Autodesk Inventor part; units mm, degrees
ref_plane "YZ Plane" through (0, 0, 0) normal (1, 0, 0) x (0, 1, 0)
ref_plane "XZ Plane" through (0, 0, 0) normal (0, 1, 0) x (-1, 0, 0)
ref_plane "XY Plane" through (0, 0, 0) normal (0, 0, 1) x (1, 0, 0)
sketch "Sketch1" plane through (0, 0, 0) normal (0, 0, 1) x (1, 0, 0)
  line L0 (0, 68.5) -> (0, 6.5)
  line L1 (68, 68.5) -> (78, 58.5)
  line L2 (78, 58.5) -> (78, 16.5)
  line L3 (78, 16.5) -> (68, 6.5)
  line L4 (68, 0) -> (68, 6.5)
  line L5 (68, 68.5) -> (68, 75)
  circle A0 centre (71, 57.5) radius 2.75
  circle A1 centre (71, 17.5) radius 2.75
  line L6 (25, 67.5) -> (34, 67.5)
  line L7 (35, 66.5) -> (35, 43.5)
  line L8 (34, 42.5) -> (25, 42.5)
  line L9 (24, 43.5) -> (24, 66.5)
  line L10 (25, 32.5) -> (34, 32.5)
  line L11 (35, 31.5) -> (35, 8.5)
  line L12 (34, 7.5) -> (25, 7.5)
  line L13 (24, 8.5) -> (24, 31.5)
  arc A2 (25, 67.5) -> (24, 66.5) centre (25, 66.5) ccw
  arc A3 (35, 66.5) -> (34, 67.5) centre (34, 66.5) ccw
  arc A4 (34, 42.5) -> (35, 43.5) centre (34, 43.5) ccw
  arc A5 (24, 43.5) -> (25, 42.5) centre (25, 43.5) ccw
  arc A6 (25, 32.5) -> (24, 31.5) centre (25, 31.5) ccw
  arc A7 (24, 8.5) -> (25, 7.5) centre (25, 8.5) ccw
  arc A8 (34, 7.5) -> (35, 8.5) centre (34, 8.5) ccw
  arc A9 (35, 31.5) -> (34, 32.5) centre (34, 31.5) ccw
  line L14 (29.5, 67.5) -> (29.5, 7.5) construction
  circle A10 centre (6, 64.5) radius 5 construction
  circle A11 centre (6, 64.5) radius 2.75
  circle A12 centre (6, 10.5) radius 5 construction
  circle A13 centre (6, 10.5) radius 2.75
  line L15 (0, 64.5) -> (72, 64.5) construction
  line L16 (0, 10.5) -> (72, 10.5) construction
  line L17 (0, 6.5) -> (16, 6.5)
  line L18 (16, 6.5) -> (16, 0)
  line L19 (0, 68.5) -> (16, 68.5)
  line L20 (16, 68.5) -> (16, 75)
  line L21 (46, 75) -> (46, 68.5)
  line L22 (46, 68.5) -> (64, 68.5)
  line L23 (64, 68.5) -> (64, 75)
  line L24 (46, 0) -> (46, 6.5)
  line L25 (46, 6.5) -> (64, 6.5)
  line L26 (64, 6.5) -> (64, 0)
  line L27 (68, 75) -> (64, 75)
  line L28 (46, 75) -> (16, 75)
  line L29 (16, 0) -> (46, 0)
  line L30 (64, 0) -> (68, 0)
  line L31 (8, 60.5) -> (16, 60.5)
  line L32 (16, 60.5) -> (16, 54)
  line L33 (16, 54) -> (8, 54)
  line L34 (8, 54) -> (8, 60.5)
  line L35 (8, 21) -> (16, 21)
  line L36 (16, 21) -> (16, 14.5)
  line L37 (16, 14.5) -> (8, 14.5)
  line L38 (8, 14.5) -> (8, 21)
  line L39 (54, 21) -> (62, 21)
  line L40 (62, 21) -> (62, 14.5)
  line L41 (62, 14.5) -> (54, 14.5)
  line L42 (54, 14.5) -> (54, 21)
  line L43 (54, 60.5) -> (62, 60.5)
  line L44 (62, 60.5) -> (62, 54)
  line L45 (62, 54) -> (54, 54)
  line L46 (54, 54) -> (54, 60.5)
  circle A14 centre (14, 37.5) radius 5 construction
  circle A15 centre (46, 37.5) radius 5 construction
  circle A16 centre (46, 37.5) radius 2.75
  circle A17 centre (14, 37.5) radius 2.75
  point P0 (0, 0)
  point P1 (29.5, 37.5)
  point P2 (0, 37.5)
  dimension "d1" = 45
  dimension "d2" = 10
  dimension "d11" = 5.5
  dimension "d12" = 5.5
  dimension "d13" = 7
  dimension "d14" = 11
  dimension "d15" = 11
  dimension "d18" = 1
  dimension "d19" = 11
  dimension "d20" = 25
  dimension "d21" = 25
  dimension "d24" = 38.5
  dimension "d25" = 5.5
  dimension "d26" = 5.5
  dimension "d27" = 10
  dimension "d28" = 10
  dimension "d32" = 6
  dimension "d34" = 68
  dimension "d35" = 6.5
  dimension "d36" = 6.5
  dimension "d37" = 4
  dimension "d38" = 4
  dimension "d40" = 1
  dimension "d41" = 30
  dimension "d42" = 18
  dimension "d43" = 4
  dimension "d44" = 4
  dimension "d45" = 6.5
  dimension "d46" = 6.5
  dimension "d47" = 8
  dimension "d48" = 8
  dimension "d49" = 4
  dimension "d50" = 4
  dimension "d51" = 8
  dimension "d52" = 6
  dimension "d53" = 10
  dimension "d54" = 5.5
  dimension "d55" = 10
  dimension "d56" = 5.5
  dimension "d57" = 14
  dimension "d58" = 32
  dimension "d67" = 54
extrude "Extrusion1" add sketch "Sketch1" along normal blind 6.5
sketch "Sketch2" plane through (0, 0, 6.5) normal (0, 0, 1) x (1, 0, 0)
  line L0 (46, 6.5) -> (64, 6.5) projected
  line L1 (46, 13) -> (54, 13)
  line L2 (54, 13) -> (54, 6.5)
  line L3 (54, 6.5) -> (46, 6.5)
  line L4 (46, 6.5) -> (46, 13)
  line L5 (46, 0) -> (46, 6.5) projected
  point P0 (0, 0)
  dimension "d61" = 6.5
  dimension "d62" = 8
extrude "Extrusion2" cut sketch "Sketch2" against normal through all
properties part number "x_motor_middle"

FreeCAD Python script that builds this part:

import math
import FreeCAD as App
import Part
import Sketcher

V = App.Vector
Q = App.Units.Quantity


def add_polygon(sketch, points):
    """Adds a closed chain of lines whose ends are joined by coincident constraints."""
    first, n = sketch.GeometryCount, len(points)
    for a, b in zip(points, points[1:] + points[:1]):
        sketch.addGeometry(Part.LineSegment(App.Vector(*a, 0), App.Vector(*b, 0)), False)
    for i in range(n):
        sketch.addConstraint(Sketcher.Constraint("Coincident", first + i, 2, first + (i + 1) % n, 1))

doc = App.newDocument("Part")
body = doc.addObject("PartDesign::Body", "Body")

# Sketch on XY plane
sketch1 = body.newObject("Sketcher::SketchObject", "Sketch")
sketch1.AttachmentSupport = (doc.getObject("XY_Plane"), [""])
sketch1.MapMode = "FlatFace"
add_polygon(sketch1, [(16, 68.5), (0, 68.5), (0, 6.5), (16, 6.5), (16, 0), (46, 0), (46, 6.5), (64, 6.5), (64, 0), (68, 0), (68, 6.5), (78, 16.5), (78, 58.5), (68, 68.5), (68, 75), (64, 75), (64, 68.5), (46, 68.5), (46, 75), (16, 75)])  # lines 0-19
sketch1.addGeometry(Part.Circle(V(6, 10.5, 0), V(0, 0, 1), 2.8), False)  # 20
add_polygon(sketch1, [(8, 14.5), (8, 21), (16, 21), (16, 14.5)])  # lines 21-24
sketch1.addGeometry(Part.ArcOfCircle(Part.Circle(V(25, 31.5, 0), V(0, 0, 1), 1), math.radians(90), math.radians(180)), False)  # 25
sketch1.addGeometry(Part.LineSegment(V(25, 32.5, 0), V(34, 32.5, 0)), False)  # 26
sketch1.addGeometry(Part.ArcOfCircle(Part.Circle(V(34, 31.5, 0), V(0, 0, 1), 1), math.radians(0), math.radians(90)), False)  # 27
sketch1.addGeometry(Part.LineSegment(V(35, 31.5, 0), V(35, 8.5, 0)), False)  # 28
sketch1.addGeometry(Part.ArcOfCircle(Part.Circle(V(34, 8.5, 0), V(0, 0, 1), 1), math.radians(-90), math.radians(0)), False)  # 29
sketch1.addGeometry(Part.LineSegment(V(34, 7.5, 0), V(25, 7.5, 0)), False)  # 30
sketch1.addGeometry(Part.ArcOfCircle(Part.Circle(V(25, 8.5, 0), V(0, 0, 1), 1), math.radians(180), math.radians(270)), False)  # 31
sketch1.addGeometry(Part.LineSegment(V(24, 8.5, 0), V(24, 31.5, 0)), False)  # 32
add_polygon(sketch1, [(54, 14.5), (54, 21), (62, 21), (62, 14.5)])  # lines 33-36
sketch1.addGeometry(Part.Circle(V(71, 17.5, 0), V(0, 0, 1), 2.8), False)  # 37
sketch1.addGeometry(Part.Circle(V(14, 37.5, 0), V(0, 0, 1), 2.8), False)  # 38
sketch1.addGeometry(Part.ArcOfCircle(Part.Circle(V(25, 66.5, 0), V(0, 0, 1), 1), math.radians(90), math.radians(180)), False)  # 39
sketch1.addGeometry(Part.LineSegment(V(25, 67.5, 0), V(34, 67.5, 0)), False)  # 40
sketch1.addGeometry(Part.ArcOfCircle(Part.Circle(V(34, 66.5, 0), V(0, 0, 1), 1), math.radians(0), math.radians(90)), False)  # 41
sketch1.addGeometry(Part.LineSegment(V(35, 66.5, 0), V(35, 43.5, 0)), False)  # 42
sketch1.addGeometry(Part.ArcOfCircle(Part.Circle(V(34, 43.5, 0), V(0, 0, 1), 1), math.radians(-90), math.radians(0)), False)  # 43
sketch1.addGeometry(Part.LineSegment(V(34, 42.5, 0), V(25, 42.5, 0)), False)  # 44
sketch1.addGeometry(Part.ArcOfCircle(Part.Circle(V(25, 43.5, 0), V(0, 0, 1), 1), math.radians(180), math.radians(270)), False)  # 45
sketch1.addGeometry(Part.LineSegment(V(24, 43.5, 0), V(24, 66.5, 0)), False)  # 46
sketch1.addGeometry(Part.Circle(V(6, 64.5, 0), V(0, 0, 1), 2.8), False)  # 47
add_polygon(sketch1, [(8, 54), (8, 60.5), (16, 60.5), (16, 54)])  # lines 48-51
sketch1.addGeometry(Part.Circle(V(46, 37.5, 0), V(0, 0, 1), 2.8), False)  # 52
add_polygon(sketch1, [(54, 54), (54, 60.5), (62, 60.5), (62, 54)])  # lines 53-56
sketch1.addGeometry(Part.Circle(V(71, 57.5, 0), V(0, 0, 1), 2.8), False)  # 57
sketch1.addConstraint([
    Sketcher.Constraint("Tangent", 25, 1, 26, 1),
    Sketcher.Constraint("Tangent", 26, 2, 27, 2),
    Sketcher.Constraint("Tangent", 27, 1, 28, 1),
    Sketcher.Constraint("Tangent", 28, 2, 29, 2),
    Sketcher.Constraint("Tangent", 29, 1, 30, 1),
    Sketcher.Constraint("Tangent", 30, 2, 31, 2),
    Sketcher.Constraint("Tangent", 31, 1, 32, 1),
    Sketcher.Constraint("Tangent", 32, 2, 25, 2),
    Sketcher.Constraint("Tangent", 39, 1, 40, 1),
    Sketcher.Constraint("Tangent", 40, 2, 41, 2),
    Sketcher.Constraint("Tangent", 41, 1, 42, 1),
    Sketcher.Constraint("Tangent", 42, 2, 43, 2),
    Sketcher.Constraint("Tangent", 43, 1, 44, 1),
    Sketcher.Constraint("Tangent", 44, 2, 45, 2),
    Sketcher.Constraint("Tangent", 45, 1, 46, 1),
    Sketcher.Constraint("Tangent", 46, 2, 39, 2),
    Sketcher.Constraint("Horizontal", 0),
    Sketcher.Constraint("Vertical", 1),
    Sketcher.Constraint("Horizontal", 2),
    Sketcher.Constraint("Vertical", 3),
    Sketcher.Constraint("Horizontal", 4),
    Sketcher.Constraint("Vertical", 5),
    Sketcher.Constraint("Horizontal", 6),
    Sketcher.Constraint("Vertical", 7),
    Sketcher.Constraint("Horizontal", 8),
    Sketcher.Constraint("Vertical", 9),
    Sketcher.Constraint("Vertical", 11),
    Sketcher.Constraint("Vertical", 13),
    Sketcher.Constraint("Horizontal", 14),
    Sketcher.Constraint("Vertical", 15),
    Sketcher.Constraint("Horizontal", 16),
    Sketcher.Constraint("Vertical", 17),
    Sketcher.Constraint("Horizontal", 18),
    Sketcher.Constraint("Vertical", 19),
    Sketcher.Constraint("Vertical", 21),
    Sketcher.Constraint("Horizontal", 22),
    Sketcher.Constraint("Vertical", 23),
    Sketcher.Constraint("Horizontal", 24),
    Sketcher.Constraint("Horizontal", 26),
    Sketcher.Constraint("Vertical", 28),
    Sketcher.Constraint("Horizontal", 30),
    Sketcher.Constraint("Vertical", 32),
    Sketcher.Constraint("Vertical", 33),
    Sketcher.Constraint("Horizontal", 34),
    Sketcher.Constraint("Vertical", 35),
    Sketcher.Constraint("Horizontal", 36),
    Sketcher.Constraint("Horizontal", 40),
    Sketcher.Constraint("Vertical", 42),
    Sketcher.Constraint("Horizontal", 44),
    Sketcher.Constraint("Vertical", 46),
    Sketcher.Constraint("Vertical", 48),
    Sketcher.Constraint("Horizontal", 49),
    Sketcher.Constraint("Vertical", 50),
    Sketcher.Constraint("Horizontal", 51),
    Sketcher.Constraint("Vertical", 53),
    Sketcher.Constraint("Horizontal", 54),
    Sketcher.Constraint("Vertical", 55),
    Sketcher.Constraint("Horizontal", 56),
    Sketcher.Constraint("Equal", 25, 27),
    Sketcher.Constraint("Equal", 27, 29),
    Sketcher.Constraint("Equal", 29, 31),
    Sketcher.Constraint("Equal", 20, 37),
    Sketcher.Constraint("Equal", 37, 38),
    Sketcher.Constraint("Equal", 31, 39),
    Sketcher.Constraint("Equal", 39, 41),
    Sketcher.Constraint("Equal", 41, 43),
    Sketcher.Constraint("Equal", 43, 45),
    Sketcher.Constraint("Equal", 38, 47),
    Sketcher.Constraint("Equal", 47, 52),
    Sketcher.Constraint("Equal", 52, 57),
    Sketcher.Constraint("PointOnObject", 0, 2, -2),
    Sketcher.Constraint("PointOnObject", 3, 2, -1),
    Sketcher.Constraint("PointOnObject", 7, 2, -1),
    Sketcher.Constraint("Perpendicular", 10, 12),
    Sketcher.Constraint("Horizontal", 38, 3, 52, 3),
    Sketcher.Constraint("Horizontal", 2, 2, 5, 2),
    Sketcher.Constraint("Horizontal", 6, 2, 9, 2),
    Sketcher.Constraint("Horizontal", 0, 2, 12, 2),
    Sketcher.Constraint("Horizontal", 12, 2, 15, 2),
    Sketcher.Constraint("Horizontal", 14, 2, 17, 2),
    Sketcher.Constraint("Horizontal", 22, 2, 33, 2),
    Sketcher.Constraint("Horizontal", 24, 2, 35, 2),
    Sketcher.Constraint("Horizontal", 49, 2, 53, 2),
    Sketcher.Constraint("Horizontal", 51, 2, 55, 2),
    Sketcher.Constraint("Vertical", 31, 3, 39, 3),
    Sketcher.Constraint("Vertical", 29, 3, 41, 3),
    Sketcher.Constraint("Vertical", 20, 3, 47, 3),
    Sketcher.Constraint("Vertical", 37, 3, 57, 3),
    Sketcher.Constraint("Vertical", 52, 3, 4, 2),
    Sketcher.Constraint("Vertical", 9, 2, 12, 2),
    Sketcher.Constraint("Vertical", 7, 2, 14, 2),
    Sketcher.Constraint("Vertical", 5, 2, 16, 2),
    Sketcher.Constraint("Vertical", 3, 2, 18, 2),
    Sketcher.Constraint("Vertical", 19, 2, 22, 2),
    Sketcher.Constraint("Vertical", 24, 2, 48, 2),
    Sketcher.Constraint("Vertical", 23, 2, 49, 2),
    Sketcher.Constraint("Vertical", 36, 2, 53, 2),
    Sketcher.Constraint("Vertical", 35, 2, 54, 2),
    Sketcher.Constraint("Equal", 24, 34),
    Sketcher.Constraint("Equal", 9, 13),
    Sketcher.Constraint("Equal", 19, 21),
    Sketcher.Constraint("Equal", 32, 42),
    Sketcher.Constraint("Equal", 35, 48),
    Sketcher.Constraint("Equal", 10, 12),
    Sketcher.Constraint("Radius", 25, Q("1 mm")),
    Sketcher.Constraint("Diameter", 20, Q("5.5 mm")),
    Sketcher.Constraint("DistanceX", 4, 1, 4, 2, Q("30 mm")),
    Sketcher.Constraint("DistanceX", 6, 1, 6, 2, Q("18 mm")),
    Sketcher.Constraint("DistanceX", 8, 1, 8, 2, Q("4 mm")),
    Sketcher.Constraint("DistanceX", 22, 1, 22, 2, Q("8 mm")),
    Sketcher.Constraint("DistanceY", 3, 2, 3, 1, Q("6.5 mm")),
    Sketcher.Constraint("DistanceX", -1, 1, 20, 3, Q("6 mm")),
    Sketcher.Constraint("DistanceX", -1, 1, 25, 3, Q("25 mm")),
    Sketcher.Constraint("DistanceX", -1, 1, 38, 3, Q("14 mm")),
    Sketcher.Constraint("DistanceX", -1, 1, 8, 2, Q("68 mm")),
    Sketcher.Constraint("DistanceX", -1, 1, 33, 2, Q("54 mm")),
    Sketcher.Constraint("DistanceY", -1, 1, 50, 2, Q("54 mm")),
    Sketcher.Constraint("DistanceX", 26, 1, 26, 2, Q("9 mm")),
    Sketcher.Constraint("DistanceY", 1, 2, 1, 1, Q("62 mm")),
    Sketcher.Constraint("DistanceY", 11, 1, 11, 2, Q("42 mm")),
    Sketcher.Constraint("DistanceY", 28, 2, 28, 1, Q("23 mm")),
    Sketcher.Constraint("DistanceX", -1, 1, 37, 3, Q("71 mm")),
    Sketcher.Constraint("DistanceY", -1, 1, 21, 2, Q("21 mm")),
    Sketcher.Constraint("DistanceY", -1, 1, 20, 3, Q("10.5 mm")),
    Sketcher.Constraint("DistanceY", -1, 1, 25, 3, Q("31.5 mm")),
    Sketcher.Constraint("DistanceY", -1, 1, 37, 3, Q("17.5 mm")),
    Sketcher.Constraint("DistanceY", -1, 1, 38, 3, Q("37.5 mm")),
    Sketcher.Constraint("DistanceY", -1, 1, 39, 3, Q("66.5 mm")),
    Sketcher.Constraint("DistanceY", -1, 1, 47, 3, Q("64.5 mm")),
    Sketcher.Constraint("DistanceY", -1, 1, 57, 3, Q("57.5 mm")),
])
pad1 = body.newObject("PartDesign::Pad", "Pad")
pad1.Profile = sketch1
pad1.Length = 6.5

# Sketch on XY plane
sketch2 = body.newObject("Sketcher::SketchObject", "Sketch001")
sketch2.AttachmentSupport = (doc.getObject("XY_Plane"), [""])
sketch2.MapMode = "FlatFace"
sketch2.AttachmentOffset = App.Placement(V(0, 0, 6.5), App.Rotation())
add_polygon(sketch2, [(46, 13), (46, 6), (54, 6), (54, 13)])  # lines 0-3
sketch2.addConstraint([
    Sketcher.Constraint("Vertical", 0),
    Sketcher.Constraint("Horizontal", 1),
    Sketcher.Constraint("Vertical", 2),
    Sketcher.Constraint("Horizontal", 3),
    Sketcher.Constraint("DistanceX", 1, 1, 1, 2, Q("8 mm")),
    Sketcher.Constraint("DistanceY", 0, 2, 0, 1, Q("6.5 mm")),
    Sketcher.Constraint("DistanceY", -1, 1, 0, 2, Q("6.5 mm")),
    Sketcher.Constraint("DistanceX", -1, 1, 0, 2, Q("46 mm")),
])
pocket1 = body.newObject("PartDesign::Pocket", "Pocket")
pocket1.Profile = sketch2
pocket1.Type = "ThroughAll"

doc.recompute()
